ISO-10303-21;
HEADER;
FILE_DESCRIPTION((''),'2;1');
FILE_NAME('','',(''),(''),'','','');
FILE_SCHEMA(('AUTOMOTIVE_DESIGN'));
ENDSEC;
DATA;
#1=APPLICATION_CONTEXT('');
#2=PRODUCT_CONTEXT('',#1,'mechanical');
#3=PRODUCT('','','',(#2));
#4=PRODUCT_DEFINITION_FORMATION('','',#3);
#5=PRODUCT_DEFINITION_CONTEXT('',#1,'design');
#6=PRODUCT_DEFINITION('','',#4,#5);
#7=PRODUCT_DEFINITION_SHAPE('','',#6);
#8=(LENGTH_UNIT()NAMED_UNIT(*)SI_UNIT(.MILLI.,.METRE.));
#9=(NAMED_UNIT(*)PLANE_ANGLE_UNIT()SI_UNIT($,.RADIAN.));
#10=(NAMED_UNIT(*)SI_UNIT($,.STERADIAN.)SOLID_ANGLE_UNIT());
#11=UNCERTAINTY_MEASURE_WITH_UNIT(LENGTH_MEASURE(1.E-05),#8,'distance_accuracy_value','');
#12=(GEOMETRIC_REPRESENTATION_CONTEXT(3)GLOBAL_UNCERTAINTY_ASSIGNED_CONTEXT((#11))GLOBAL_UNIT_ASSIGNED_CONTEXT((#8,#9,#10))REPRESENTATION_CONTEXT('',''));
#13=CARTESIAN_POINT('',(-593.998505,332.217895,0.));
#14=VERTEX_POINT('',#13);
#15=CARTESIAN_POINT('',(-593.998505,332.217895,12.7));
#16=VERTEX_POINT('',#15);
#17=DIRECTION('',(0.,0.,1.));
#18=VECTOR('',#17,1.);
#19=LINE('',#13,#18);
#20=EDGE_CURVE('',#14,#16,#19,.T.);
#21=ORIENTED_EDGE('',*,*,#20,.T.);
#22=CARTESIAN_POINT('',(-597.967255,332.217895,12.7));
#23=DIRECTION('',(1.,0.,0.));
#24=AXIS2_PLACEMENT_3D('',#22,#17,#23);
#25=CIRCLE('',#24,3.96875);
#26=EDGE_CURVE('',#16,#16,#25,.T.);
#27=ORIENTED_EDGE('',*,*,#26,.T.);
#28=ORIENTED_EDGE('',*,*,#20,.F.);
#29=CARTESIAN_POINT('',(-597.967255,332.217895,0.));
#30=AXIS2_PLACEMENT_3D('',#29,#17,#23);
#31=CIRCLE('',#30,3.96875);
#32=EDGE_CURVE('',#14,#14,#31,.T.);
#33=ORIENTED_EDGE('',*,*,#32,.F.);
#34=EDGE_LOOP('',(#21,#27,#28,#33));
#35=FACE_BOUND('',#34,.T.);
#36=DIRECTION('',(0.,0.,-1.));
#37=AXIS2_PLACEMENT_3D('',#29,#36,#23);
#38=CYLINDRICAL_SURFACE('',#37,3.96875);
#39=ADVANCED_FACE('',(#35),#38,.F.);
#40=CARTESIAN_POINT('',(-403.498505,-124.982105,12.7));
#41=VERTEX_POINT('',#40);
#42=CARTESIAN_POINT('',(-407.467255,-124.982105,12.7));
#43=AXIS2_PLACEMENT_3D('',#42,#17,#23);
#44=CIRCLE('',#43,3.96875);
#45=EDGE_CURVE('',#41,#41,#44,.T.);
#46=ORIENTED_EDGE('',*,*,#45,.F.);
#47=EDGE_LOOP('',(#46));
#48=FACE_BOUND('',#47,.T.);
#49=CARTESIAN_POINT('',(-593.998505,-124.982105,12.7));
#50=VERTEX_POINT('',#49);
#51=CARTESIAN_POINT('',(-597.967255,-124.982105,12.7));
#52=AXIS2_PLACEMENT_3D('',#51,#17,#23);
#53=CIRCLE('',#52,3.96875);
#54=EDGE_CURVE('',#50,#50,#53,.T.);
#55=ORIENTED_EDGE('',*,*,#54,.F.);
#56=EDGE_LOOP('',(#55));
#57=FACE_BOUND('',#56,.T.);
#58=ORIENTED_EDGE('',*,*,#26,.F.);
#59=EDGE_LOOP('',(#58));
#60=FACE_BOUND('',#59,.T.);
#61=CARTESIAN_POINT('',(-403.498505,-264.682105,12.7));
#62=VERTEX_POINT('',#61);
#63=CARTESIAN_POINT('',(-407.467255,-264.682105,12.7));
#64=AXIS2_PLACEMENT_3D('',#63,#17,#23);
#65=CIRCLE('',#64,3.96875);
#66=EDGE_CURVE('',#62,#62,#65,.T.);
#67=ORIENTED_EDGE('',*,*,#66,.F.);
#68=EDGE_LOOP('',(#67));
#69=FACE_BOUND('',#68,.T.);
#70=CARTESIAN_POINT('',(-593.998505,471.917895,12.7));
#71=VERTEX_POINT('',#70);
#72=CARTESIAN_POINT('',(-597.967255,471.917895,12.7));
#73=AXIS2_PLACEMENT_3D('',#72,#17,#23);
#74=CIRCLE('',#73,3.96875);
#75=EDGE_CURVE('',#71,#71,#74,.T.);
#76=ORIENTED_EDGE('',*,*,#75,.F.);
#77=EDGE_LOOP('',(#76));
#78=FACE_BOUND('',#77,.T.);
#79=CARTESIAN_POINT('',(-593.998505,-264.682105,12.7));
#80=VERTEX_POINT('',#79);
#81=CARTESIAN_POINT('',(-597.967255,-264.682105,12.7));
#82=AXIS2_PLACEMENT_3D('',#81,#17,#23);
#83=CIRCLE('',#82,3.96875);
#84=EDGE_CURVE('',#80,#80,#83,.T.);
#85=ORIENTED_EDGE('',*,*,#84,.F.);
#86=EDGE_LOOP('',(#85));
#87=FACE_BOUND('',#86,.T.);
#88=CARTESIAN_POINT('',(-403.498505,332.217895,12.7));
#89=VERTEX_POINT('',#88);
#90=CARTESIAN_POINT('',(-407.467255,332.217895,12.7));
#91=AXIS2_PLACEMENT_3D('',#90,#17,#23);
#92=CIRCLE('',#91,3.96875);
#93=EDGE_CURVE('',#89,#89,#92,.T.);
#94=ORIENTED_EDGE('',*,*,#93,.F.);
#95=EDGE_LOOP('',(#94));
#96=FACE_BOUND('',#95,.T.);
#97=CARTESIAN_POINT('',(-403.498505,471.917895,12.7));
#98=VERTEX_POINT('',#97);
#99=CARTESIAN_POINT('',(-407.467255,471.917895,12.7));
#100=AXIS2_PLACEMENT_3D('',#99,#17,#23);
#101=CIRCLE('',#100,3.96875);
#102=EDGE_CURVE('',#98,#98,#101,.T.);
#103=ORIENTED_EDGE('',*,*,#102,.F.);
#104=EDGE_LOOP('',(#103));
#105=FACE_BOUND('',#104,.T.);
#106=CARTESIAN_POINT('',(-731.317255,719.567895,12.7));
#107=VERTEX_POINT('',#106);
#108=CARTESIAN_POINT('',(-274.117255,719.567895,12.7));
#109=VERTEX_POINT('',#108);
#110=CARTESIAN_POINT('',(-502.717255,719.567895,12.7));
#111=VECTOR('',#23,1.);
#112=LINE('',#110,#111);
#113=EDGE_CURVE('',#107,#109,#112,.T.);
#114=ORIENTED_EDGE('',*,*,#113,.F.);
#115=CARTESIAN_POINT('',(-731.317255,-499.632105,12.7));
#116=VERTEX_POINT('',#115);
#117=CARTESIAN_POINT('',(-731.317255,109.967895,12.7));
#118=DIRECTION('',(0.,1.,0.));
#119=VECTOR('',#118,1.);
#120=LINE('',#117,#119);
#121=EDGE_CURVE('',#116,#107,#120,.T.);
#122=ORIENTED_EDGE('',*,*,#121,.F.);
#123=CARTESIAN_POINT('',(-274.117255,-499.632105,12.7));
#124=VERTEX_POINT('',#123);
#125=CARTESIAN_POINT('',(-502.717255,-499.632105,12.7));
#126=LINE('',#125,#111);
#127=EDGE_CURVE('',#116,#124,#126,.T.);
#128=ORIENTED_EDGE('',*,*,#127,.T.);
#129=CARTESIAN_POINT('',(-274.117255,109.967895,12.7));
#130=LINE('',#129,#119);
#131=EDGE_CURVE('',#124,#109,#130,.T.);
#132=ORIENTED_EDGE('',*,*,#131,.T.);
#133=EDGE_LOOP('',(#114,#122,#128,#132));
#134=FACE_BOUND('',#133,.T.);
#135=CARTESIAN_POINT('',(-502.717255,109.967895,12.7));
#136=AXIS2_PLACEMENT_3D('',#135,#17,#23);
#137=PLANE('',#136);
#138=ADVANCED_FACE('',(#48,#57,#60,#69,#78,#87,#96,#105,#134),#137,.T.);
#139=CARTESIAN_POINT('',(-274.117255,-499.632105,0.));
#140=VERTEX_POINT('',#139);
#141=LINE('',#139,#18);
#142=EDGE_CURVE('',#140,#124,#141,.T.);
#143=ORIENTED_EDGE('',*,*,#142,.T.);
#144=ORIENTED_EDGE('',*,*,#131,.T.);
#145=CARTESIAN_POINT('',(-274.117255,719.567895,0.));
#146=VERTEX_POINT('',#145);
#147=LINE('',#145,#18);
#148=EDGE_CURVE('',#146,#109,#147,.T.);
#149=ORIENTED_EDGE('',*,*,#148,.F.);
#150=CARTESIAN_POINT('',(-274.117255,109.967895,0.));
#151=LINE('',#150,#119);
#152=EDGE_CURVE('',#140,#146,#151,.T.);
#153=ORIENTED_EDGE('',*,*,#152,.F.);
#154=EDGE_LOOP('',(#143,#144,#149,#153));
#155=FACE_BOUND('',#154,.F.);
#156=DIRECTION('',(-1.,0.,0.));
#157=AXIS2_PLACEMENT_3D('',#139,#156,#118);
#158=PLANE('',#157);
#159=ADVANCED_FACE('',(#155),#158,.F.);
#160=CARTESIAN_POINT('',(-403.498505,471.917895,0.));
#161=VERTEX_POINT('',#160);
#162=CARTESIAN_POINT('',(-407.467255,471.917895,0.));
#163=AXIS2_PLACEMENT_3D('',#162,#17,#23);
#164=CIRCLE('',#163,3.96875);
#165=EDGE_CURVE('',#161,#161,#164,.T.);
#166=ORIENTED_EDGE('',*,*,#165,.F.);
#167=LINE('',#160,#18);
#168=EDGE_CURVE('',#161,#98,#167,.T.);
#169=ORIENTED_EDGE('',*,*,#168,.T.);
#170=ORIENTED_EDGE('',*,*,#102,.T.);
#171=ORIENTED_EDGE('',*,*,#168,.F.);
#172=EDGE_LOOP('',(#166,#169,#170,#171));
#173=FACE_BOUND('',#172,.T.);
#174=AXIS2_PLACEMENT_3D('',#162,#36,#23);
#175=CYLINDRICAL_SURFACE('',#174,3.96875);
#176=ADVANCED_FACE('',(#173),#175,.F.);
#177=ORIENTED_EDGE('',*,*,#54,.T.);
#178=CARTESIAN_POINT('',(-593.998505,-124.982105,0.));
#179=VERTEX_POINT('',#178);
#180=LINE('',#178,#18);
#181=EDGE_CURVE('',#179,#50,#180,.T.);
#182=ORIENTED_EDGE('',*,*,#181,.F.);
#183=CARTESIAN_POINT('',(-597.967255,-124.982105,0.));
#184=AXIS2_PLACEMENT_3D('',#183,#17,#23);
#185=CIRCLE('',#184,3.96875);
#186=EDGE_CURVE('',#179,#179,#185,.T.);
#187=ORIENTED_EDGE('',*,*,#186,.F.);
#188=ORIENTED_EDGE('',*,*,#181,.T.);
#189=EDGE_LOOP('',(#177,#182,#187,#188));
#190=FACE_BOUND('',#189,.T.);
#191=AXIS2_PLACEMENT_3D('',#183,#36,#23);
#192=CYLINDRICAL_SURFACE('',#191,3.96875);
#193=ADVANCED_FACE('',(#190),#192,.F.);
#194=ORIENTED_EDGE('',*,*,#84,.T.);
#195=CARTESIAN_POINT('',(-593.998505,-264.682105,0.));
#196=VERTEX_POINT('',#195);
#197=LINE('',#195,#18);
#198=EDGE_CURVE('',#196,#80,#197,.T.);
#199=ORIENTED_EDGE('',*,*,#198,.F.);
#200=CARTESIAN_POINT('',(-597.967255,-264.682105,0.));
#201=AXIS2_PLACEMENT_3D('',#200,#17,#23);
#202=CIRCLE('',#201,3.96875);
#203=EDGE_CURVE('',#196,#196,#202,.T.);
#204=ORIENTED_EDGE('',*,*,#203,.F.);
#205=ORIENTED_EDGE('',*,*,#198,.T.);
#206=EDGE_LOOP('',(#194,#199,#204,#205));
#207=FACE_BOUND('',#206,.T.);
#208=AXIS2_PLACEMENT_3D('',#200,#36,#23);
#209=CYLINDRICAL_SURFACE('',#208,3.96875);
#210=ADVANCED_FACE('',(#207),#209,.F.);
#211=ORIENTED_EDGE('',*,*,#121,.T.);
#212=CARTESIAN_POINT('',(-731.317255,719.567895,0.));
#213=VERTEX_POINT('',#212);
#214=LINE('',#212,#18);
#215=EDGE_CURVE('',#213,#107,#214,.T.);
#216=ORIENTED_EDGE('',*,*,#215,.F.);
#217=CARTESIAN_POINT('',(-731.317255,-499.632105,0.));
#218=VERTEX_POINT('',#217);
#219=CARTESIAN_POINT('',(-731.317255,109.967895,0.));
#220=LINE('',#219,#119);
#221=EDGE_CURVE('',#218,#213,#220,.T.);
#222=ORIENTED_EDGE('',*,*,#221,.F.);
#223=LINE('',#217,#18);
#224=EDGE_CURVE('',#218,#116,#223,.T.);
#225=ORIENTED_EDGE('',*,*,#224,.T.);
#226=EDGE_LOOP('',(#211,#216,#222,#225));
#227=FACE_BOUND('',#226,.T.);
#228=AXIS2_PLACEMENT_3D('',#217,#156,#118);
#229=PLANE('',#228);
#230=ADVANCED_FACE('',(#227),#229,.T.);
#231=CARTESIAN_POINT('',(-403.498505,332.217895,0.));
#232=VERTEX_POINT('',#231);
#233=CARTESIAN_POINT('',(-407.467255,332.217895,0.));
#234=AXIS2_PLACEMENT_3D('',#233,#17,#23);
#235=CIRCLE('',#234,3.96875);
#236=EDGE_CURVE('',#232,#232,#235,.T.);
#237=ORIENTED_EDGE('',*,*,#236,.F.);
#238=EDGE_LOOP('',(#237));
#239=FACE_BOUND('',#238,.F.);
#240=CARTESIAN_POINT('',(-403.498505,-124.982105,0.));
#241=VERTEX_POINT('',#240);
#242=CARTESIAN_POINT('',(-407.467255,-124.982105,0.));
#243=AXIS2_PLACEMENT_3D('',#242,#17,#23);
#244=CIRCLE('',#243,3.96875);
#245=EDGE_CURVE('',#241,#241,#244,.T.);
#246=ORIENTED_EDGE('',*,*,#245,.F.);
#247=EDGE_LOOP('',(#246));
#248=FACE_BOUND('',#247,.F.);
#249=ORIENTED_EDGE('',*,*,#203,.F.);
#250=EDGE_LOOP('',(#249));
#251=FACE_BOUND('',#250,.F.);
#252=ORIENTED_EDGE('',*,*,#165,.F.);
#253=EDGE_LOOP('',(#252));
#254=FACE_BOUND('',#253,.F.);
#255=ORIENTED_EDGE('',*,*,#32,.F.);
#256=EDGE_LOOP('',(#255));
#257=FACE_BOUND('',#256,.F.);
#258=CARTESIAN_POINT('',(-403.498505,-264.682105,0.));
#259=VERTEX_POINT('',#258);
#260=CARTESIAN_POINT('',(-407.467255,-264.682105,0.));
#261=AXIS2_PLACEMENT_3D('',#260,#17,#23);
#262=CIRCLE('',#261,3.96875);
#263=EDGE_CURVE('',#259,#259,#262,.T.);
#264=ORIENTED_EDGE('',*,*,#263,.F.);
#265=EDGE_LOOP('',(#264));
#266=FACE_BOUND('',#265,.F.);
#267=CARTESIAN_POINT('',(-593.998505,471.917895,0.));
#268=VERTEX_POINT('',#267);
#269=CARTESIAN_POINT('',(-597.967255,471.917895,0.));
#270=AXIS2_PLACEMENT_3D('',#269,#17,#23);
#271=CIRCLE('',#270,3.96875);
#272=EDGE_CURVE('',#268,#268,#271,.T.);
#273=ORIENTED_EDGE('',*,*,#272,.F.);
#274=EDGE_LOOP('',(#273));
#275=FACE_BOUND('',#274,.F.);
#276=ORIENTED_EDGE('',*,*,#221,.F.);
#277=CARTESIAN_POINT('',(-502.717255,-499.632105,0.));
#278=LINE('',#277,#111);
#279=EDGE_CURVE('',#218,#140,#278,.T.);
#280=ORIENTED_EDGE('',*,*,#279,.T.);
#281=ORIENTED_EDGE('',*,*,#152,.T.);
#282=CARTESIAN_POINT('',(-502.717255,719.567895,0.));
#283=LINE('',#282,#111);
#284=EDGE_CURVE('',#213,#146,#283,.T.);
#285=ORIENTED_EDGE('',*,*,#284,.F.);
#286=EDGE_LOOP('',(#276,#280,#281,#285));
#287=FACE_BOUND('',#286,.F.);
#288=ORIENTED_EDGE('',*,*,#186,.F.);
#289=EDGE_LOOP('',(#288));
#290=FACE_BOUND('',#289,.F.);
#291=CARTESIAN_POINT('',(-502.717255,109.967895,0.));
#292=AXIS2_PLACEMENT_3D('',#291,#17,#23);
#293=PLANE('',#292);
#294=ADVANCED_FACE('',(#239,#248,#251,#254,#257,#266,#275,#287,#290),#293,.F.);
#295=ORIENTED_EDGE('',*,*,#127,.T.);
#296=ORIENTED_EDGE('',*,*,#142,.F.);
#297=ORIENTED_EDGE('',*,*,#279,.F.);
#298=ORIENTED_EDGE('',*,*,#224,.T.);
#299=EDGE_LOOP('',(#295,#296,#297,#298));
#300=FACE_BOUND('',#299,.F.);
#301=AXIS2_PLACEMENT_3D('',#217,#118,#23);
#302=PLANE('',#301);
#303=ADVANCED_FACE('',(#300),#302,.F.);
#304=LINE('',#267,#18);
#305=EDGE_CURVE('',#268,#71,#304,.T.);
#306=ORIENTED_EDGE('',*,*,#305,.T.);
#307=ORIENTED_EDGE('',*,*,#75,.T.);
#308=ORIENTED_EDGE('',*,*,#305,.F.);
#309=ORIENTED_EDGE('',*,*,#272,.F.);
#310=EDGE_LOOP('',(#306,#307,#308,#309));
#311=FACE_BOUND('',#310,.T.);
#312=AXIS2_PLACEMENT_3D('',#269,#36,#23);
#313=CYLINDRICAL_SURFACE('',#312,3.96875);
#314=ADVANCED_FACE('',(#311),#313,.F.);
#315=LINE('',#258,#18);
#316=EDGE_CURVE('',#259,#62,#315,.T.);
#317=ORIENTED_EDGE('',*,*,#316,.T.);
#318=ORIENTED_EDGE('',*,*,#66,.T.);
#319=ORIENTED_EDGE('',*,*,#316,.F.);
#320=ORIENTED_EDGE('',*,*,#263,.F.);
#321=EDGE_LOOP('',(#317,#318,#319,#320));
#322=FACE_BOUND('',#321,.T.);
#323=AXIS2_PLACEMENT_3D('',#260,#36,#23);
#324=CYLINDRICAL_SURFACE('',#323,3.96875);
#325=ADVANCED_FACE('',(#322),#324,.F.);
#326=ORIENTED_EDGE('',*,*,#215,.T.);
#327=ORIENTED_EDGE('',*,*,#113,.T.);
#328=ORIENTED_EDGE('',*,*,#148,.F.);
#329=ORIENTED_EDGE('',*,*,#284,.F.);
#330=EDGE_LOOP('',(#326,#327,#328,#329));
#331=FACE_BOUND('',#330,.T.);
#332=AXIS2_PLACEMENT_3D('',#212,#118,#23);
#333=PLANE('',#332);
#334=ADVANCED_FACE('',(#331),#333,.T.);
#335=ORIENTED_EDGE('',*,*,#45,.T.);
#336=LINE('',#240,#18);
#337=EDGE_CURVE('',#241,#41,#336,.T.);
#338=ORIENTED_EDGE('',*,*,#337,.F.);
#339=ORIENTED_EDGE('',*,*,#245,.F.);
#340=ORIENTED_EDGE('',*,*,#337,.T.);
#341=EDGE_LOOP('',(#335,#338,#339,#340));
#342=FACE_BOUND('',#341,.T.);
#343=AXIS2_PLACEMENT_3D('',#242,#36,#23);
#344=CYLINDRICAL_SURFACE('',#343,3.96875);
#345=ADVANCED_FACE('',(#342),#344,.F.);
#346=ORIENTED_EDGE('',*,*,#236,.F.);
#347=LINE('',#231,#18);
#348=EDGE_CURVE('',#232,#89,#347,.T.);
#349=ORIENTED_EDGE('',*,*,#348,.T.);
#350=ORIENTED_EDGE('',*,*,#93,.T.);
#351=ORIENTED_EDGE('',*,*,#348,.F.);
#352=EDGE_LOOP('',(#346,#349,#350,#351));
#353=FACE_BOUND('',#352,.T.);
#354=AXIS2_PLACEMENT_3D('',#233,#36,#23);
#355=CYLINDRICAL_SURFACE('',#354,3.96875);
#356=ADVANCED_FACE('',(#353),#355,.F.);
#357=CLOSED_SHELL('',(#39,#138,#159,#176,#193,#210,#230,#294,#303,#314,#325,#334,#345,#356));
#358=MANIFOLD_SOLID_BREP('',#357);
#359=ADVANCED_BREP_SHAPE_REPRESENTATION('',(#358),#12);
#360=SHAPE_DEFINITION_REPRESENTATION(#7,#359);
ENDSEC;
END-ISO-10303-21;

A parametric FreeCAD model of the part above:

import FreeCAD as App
import Part
import Sketcher
from FreeCAD import Vector
Q = App.Units.Quantity

doc = App.newDocument("Part")
body = doc.addObject("PartDesign::Body", "Body")

# Sketch on XY plane
sketch1 = body.newObject("Sketcher::SketchObject", "Sketch")
sketch1.AttachmentSupport = (doc.getObject("XY_Plane"), [""])
sketch1.MapMode = "FlatFace"
sketch1.addGeometry(Part.LineSegment(Vector(-731.3, 719.6, 0), Vector(-731.3, -499.6, 0)), False)
sketch1.addGeometry(Part.LineSegment(Vector(-731.3, -499.6, 0), Vector(-274.1, -499.6, 0)), False)
sketch1.addGeometry(Part.LineSegment(Vector(-274.1, -499.6, 0), Vector(-274.1, 719.6, 0)), False)
sketch1.addGeometry(Part.LineSegment(Vector(-274.1, 719.6, 0), Vector(-731.3, 719.6, 0)), False)
sketch1.addGeometry(Part.Circle(Vector(-598, -264.7, 0), Vector(0, 0, 1), 4), False)
sketch1.addGeometry(Part.Circle(Vector(-598, -125, 0), Vector(0, 0, 1), 4), False)
sketch1.addGeometry(Part.Circle(Vector(-407.5, -264.7, 0), Vector(0, 0, 1), 4), False)
sketch1.addGeometry(Part.Circle(Vector(-407.5, -125, 0), Vector(0, 0, 1), 4), False)
sketch1.addGeometry(Part.Circle(Vector(-598, 332.2, 0), Vector(0, 0, 1), 4), False)
sketch1.addGeometry(Part.Circle(Vector(-598, 471.9, 0), Vector(0, 0, 1), 4), False)
sketch1.addGeometry(Part.Circle(Vector(-407.5, 332.2, 0), Vector(0, 0, 1), 4), False)
sketch1.addGeometry(Part.Circle(Vector(-407.5, 471.9, 0), Vector(0, 0, 1), 4), False)
sketch1.addConstraint(Sketcher.Constraint("Coincident", 0, 2, 1, 1))
sketch1.addConstraint(Sketcher.Constraint("Coincident", 1, 2, 2, 1))
sketch1.addConstraint(Sketcher.Constraint("Coincident", 2, 2, 3, 1))
sketch1.addConstraint(Sketcher.Constraint("Coincident", 3, 2, 0, 1))
sketch1.addConstraint(Sketcher.Constraint("Vertical", 0))
sketch1.addConstraint(Sketcher.Constraint("Horizontal", 1))
sketch1.addConstraint(Sketcher.Constraint("Vertical", 2))
sketch1.addConstraint(Sketcher.Constraint("Horizontal", 3))
sketch1.addConstraint(Sketcher.Constraint("Equal", 4, 5))
sketch1.addConstraint(Sketcher.Constraint("Equal", 5, 6))
sketch1.addConstraint(Sketcher.Constraint("Equal", 6, 7))
sketch1.addConstraint(Sketcher.Constraint("Equal", 7, 8))
sketch1.addConstraint(Sketcher.Constraint("Equal", 8, 9))
sketch1.addConstraint(Sketcher.Constraint("Equal", 9, 10))
sketch1.addConstraint(Sketcher.Constraint("Equal", 10, 11))
sketch1.addConstraint(Sketcher.Constraint("Horizontal", 4, 3, 6, 3))
sketch1.addConstraint(Sketcher.Constraint("Horizontal", 5, 3, 7, 3))
sketch1.addConstraint(Sketcher.Constraint("Horizontal", 8, 3, 10, 3))
sketch1.addConstraint(Sketcher.Constraint("Horizontal", 9, 3, 11, 3))
sketch1.addConstraint(Sketcher.Constraint("Vertical", 4, 3, 5, 3))
sketch1.addConstraint(Sketcher.Constraint("Vertical", 6, 3, 7, 3))
sketch1.addConstraint(Sketcher.Constraint("Vertical", 5, 3, 8, 3))
sketch1.addConstraint(Sketcher.Constraint("Vertical", 8, 3, 9, 3))
sketch1.addConstraint(Sketcher.Constraint("Vertical", 7, 3, 10, 3))
sketch1.addConstraint(Sketcher.Constraint("Vertical", 10, 3, 11, 3))
sketch1.addConstraint(Sketcher.Constraint("DistanceX", 1, 1, 1, 2, Q("18 in")))
sketch1.addConstraint(Sketcher.Constraint("DistanceY", 0, 2, 0, 1, Q("48 in")))
sketch1.addConstraint(Sketcher.Constraint("Diameter", 4, Q("0.3125 in")))
sketch1.addConstraint(Sketcher.Constraint("DistanceY", 5, 3, 8, 3, Q("18 in")))
sketch1.addConstraint(Sketcher.Constraint("DistanceY", 4, 3, 9, 3, Q("29 in")))
sketch1.addConstraint(Sketcher.Constraint("DistanceY", 4, 3, 5, 3, Q("5.5 in")))
sketch1.addConstraint(Sketcher.Constraint("DistanceX", 4, 3, 6, 3, Q("7.5 in")))
sketch1.addConstraint(Sketcher.Constraint("DistanceX", 0, 2, 4, 3, Q("5.25 in")))
sketch1.addConstraint(Sketcher.Constraint("DistanceY", 0, 2, 4, 3, Q("9.25 in")))
sketch1.addConstraint(Sketcher.Constraint("DistanceX", 4, 3, -1, 1, Q("597.967255 mm")))
sketch1.addConstraint(Sketcher.Constraint("DistanceY", 4, 3, -1, 1, Q("264.682105 mm")))
pad1 = body.newObject("PartDesign::Pad", "Pad")
pad1.Profile = sketch1
pad1.Length = Q("0.5 in")

doc.recompute()
